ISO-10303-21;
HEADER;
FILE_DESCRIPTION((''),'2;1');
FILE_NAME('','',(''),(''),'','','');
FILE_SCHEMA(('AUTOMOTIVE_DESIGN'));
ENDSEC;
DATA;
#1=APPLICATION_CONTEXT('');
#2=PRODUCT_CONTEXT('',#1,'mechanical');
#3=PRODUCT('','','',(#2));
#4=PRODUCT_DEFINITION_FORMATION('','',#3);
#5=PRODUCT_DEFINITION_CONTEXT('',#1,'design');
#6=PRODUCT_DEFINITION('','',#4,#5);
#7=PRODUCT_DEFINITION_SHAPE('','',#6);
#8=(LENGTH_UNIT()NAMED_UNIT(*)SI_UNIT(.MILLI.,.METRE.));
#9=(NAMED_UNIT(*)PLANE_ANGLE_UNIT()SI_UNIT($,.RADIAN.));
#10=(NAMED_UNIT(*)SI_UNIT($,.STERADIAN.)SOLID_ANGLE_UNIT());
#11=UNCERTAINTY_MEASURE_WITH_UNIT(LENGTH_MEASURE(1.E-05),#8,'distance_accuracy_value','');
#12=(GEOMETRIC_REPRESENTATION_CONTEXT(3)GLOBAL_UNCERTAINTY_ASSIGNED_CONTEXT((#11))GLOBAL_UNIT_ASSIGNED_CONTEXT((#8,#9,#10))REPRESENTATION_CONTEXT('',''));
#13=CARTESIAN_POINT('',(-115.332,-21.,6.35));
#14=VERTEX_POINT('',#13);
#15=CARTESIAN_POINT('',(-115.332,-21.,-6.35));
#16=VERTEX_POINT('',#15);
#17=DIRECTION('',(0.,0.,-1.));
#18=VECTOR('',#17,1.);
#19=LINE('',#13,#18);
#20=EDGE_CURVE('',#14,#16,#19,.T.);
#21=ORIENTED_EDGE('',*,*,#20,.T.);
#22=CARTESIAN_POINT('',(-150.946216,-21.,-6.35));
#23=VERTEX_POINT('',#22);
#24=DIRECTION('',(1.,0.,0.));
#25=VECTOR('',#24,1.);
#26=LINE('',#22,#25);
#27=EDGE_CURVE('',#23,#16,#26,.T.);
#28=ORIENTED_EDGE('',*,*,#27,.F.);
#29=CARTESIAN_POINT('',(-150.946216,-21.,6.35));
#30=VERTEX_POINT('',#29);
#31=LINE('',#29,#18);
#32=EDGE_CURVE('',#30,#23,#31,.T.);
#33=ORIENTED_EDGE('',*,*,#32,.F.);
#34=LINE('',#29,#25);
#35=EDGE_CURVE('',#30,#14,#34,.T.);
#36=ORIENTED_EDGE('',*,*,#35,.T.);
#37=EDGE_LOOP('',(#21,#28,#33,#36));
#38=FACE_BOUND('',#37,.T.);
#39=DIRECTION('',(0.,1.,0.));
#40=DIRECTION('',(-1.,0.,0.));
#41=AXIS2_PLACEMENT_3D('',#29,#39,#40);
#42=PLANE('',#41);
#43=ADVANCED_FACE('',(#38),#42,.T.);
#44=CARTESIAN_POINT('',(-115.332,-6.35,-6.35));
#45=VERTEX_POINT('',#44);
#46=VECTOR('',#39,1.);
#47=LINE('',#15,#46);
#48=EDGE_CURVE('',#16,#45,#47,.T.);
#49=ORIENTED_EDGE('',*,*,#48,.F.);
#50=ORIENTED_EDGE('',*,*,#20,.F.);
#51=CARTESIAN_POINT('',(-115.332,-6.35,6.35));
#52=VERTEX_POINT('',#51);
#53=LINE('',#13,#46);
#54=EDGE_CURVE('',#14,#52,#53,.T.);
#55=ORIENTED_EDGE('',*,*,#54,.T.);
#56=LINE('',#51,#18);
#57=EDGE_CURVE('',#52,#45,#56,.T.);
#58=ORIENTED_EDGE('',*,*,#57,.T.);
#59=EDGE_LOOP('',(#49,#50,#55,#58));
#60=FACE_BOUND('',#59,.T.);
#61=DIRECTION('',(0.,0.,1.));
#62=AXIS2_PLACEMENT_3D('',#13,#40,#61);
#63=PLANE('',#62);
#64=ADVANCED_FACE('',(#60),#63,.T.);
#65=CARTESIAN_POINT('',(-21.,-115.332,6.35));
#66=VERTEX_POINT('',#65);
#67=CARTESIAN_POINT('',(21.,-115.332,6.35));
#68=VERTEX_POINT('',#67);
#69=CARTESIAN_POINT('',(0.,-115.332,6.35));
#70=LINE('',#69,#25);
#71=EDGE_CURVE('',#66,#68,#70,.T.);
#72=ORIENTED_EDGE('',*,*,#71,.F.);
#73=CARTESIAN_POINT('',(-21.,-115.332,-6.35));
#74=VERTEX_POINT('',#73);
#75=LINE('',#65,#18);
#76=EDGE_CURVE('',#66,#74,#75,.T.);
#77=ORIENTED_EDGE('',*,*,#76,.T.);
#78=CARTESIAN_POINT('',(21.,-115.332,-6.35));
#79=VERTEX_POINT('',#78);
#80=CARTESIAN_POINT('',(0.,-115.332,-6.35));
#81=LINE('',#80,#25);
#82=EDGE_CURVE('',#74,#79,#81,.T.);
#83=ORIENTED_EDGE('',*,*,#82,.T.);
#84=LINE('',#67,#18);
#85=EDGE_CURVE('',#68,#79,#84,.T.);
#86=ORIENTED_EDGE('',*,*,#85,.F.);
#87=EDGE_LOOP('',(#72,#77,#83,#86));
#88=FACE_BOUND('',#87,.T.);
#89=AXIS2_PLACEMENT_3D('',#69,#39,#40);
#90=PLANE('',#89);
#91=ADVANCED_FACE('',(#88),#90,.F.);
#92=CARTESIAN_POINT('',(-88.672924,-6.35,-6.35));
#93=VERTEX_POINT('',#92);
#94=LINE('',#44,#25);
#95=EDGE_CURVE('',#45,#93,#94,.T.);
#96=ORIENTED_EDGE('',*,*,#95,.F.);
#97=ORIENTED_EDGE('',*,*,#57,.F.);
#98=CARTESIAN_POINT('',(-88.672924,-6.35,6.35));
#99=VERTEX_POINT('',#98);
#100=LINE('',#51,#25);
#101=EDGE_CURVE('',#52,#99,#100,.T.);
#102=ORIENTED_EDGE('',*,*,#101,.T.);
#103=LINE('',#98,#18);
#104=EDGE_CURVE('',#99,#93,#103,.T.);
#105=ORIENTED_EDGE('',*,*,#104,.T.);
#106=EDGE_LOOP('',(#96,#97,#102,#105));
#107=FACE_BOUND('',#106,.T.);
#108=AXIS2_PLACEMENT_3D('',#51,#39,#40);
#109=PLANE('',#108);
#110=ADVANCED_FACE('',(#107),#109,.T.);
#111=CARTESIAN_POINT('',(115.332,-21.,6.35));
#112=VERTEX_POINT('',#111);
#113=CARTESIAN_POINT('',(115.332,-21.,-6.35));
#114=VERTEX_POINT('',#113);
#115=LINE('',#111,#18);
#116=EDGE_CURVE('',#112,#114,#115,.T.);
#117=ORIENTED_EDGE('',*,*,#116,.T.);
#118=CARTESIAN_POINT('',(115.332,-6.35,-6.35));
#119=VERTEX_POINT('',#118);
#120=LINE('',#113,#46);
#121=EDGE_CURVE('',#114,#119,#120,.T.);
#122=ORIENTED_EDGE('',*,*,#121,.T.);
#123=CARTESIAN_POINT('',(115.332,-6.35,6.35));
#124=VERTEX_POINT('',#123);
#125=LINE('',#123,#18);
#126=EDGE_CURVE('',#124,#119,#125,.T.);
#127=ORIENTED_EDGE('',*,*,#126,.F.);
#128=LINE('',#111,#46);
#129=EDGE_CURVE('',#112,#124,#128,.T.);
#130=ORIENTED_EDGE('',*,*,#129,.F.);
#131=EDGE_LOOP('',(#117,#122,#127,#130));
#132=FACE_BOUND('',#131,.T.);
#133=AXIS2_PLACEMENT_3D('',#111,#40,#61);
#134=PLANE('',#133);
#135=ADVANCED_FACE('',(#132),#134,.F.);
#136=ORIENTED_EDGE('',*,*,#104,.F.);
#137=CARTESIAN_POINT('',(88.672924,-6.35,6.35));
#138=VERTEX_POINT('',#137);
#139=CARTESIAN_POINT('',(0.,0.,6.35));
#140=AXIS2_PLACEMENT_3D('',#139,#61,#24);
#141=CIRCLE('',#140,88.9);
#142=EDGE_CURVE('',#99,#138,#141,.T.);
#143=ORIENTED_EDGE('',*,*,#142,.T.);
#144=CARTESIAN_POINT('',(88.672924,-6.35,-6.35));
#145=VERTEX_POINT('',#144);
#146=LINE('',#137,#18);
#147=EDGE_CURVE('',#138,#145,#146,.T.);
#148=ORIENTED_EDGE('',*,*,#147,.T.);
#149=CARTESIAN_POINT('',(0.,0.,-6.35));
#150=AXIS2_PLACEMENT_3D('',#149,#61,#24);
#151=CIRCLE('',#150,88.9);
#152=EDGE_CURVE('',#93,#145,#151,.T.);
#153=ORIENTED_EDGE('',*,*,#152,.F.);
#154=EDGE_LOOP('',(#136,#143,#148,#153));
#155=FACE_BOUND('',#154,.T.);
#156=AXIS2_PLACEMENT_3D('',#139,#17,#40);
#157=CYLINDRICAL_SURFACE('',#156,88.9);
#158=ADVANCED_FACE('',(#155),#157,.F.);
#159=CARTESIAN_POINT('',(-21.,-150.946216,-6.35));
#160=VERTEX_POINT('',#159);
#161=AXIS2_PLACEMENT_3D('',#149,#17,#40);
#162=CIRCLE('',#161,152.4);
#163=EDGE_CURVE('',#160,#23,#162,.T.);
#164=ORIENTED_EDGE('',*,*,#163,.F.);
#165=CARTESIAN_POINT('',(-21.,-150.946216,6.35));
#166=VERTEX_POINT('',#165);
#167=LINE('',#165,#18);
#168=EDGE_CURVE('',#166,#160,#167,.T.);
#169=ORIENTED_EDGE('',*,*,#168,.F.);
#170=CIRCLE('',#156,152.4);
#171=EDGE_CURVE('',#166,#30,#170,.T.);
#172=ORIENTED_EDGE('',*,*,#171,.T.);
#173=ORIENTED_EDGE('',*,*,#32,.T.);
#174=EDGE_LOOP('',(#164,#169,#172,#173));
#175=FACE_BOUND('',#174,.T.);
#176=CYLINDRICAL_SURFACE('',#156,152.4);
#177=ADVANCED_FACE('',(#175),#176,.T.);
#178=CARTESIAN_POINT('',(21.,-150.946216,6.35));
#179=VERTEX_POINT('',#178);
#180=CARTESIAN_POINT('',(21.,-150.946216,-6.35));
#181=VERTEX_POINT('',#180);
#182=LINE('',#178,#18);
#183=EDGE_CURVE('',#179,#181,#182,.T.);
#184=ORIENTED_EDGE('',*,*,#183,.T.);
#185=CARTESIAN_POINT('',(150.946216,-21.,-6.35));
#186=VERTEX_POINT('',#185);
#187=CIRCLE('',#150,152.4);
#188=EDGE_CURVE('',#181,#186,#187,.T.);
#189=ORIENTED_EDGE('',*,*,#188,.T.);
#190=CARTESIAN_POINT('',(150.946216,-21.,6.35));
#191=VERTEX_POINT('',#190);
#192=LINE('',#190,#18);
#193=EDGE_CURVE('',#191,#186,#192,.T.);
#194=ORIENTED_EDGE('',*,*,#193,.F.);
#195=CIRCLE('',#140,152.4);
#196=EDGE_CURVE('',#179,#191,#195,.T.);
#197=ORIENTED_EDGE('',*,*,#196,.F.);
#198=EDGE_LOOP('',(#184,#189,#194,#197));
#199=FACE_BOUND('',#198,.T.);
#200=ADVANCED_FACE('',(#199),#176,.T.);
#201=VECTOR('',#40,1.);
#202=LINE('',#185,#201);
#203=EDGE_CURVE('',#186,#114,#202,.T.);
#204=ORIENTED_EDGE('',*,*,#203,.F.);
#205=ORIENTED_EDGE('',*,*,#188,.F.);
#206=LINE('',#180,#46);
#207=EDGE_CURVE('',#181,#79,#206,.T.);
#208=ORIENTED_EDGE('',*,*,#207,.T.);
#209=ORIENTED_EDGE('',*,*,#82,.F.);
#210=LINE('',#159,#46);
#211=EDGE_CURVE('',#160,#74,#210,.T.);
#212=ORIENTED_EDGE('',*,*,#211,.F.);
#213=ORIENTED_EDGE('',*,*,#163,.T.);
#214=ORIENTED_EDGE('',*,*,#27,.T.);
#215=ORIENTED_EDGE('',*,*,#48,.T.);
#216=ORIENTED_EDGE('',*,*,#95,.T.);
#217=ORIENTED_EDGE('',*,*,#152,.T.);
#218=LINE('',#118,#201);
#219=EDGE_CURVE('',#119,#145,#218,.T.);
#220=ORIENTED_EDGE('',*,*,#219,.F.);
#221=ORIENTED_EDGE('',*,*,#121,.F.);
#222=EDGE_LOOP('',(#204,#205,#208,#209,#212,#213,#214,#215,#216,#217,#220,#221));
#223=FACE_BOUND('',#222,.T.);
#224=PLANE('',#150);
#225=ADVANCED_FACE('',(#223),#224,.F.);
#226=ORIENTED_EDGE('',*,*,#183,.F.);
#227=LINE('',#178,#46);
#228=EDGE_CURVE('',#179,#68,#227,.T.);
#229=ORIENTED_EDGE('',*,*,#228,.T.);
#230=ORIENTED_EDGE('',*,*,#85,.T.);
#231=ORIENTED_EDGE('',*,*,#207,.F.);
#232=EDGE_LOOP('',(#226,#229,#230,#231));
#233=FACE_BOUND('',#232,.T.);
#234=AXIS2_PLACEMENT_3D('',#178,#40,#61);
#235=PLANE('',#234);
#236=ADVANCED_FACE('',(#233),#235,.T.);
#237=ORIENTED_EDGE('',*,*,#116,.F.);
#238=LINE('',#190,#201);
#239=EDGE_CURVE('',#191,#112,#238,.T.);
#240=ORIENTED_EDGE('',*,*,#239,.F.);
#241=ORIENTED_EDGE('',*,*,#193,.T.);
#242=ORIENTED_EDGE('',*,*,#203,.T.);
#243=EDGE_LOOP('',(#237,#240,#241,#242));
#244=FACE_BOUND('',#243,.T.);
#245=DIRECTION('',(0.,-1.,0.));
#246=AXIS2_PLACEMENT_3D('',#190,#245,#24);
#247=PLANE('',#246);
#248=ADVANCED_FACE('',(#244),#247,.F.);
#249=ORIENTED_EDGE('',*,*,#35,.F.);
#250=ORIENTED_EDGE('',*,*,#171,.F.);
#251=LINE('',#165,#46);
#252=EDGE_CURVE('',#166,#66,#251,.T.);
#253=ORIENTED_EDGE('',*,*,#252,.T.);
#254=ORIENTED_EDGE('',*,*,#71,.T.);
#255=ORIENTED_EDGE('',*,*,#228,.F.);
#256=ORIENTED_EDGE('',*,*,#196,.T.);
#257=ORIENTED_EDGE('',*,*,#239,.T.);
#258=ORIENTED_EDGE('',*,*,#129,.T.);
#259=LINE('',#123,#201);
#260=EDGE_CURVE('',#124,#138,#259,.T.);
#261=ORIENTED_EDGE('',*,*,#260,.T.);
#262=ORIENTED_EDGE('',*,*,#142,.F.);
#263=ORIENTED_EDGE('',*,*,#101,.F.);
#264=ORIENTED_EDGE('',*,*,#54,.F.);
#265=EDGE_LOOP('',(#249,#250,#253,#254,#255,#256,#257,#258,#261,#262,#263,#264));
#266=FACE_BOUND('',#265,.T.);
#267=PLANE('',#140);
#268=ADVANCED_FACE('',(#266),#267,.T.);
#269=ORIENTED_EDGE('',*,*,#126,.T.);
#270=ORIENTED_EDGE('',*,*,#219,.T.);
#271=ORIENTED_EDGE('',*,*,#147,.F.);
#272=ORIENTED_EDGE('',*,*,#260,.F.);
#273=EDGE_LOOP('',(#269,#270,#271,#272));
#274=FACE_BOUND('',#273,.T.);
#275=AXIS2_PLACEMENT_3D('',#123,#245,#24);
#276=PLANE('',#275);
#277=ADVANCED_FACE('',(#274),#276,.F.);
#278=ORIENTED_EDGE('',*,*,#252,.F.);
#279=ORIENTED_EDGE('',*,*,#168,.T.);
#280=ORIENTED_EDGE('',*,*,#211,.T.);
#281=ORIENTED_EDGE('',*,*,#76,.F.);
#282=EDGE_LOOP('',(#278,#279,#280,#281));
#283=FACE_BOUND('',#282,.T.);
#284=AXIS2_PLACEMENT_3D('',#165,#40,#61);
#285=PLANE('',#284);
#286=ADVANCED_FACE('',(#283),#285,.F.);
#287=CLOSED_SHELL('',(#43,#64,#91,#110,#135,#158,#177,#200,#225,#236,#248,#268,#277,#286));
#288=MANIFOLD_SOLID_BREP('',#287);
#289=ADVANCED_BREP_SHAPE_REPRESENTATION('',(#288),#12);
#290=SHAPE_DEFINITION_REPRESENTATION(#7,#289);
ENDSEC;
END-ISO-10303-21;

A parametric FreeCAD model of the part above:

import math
import FreeCAD as App
import Part
import Sketcher

V = App.Vector
Q = App.Units.Quantity

doc = App.newDocument("Part")
params = doc.addObject("Spreadsheet::Sheet", "Params")
for row, (alias, value) in enumerate([
    ("sketch1_radius", "6 in"),
    ("sketch1_radius2", "3.5 in"),
    ("pad1_length", "0.5 in"),
], start=1):
    params.set(f"A{row}", alias)
    params.set(f"B{row}", "=" + value)
    params.setAlias(f"B{row}", alias)

body = doc.addObject("PartDesign::Body", "Body")

# Sketch on XY plane
sketch1 = body.newObject("Sketcher::SketchObject", "Sketch")
sketch1.AttachmentSupport = (doc.getObject("XY_Plane"), [""])
sketch1.MapMode = "FlatFace"
sketch1.addGeometry(Part.LineSegment(V(21, -115.332, 0), V(21, -150.946216, 0)), False)
sketch1.addGeometry(Part.ArcOfCircle(Part.Circle(V(0, 0, 0), V(0, 0, 1), 152.4), math.radians(-82.079712), math.radians(-7.920288)), False)
sketch1.addGeometry(Part.LineSegment(V(150.946216, -21, 0), V(115.332, -21, 0)), False)
sketch1.addGeometry(Part.LineSegment(V(115.332, -21, 0), V(115.332, -6.35, 0)), False)
sketch1.addGeometry(Part.LineSegment(V(115.332, -6.35, 0), V(88.672924, -6.35, 0)), False)
sketch1.addGeometry(Part.ArcOfCircle(Part.Circle(V(0, 0, 0), V(0, 0, 1), 88.9), math.radians(-90), math.radians(-4.096044)), False)
sketch1.addGeometry(Part.LineSegment(V(0, -88.9, 0), V(0, -115.332, 0)), False)
sketch1.addGeometry(Part.LineSegment(V(0, -115.332, 0), V(21, -115.332, 0)), False)
sketch1.addConstraint(Sketcher.Constraint("Coincident", 0, 2, 1, 1))
sketch1.addConstraint(Sketcher.Constraint("Coincident", 1, 2, 2, 1))
sketch1.addConstraint(Sketcher.Constraint("Coincident", 2, 2, 3, 1))
sketch1.addConstraint(Sketcher.Constraint("Coincident", 3, 2, 4, 1))
sketch1.addConstraint(Sketcher.Constraint("Coincident", 4, 2, 5, 2))
sketch1.addConstraint(Sketcher.Constraint("Coincident", 5, 1, 6, 1))
sketch1.addConstraint(Sketcher.Constraint("Coincident", 6, 2, 7, 1))
sketch1.addConstraint(Sketcher.Constraint("Coincident", 7, 2, 0, 1))
sketch1.addConstraint(Sketcher.Constraint("Vertical", 0))
sketch1.addConstraint(Sketcher.Constraint("Horizontal", 2))
sketch1.addConstraint(Sketcher.Constraint("Vertical", 3))
sketch1.addConstraint(Sketcher.Constraint("Horizontal", 4))
sketch1.addConstraint(Sketcher.Constraint("Vertical", 6))
sketch1.addConstraint(Sketcher.Constraint("Horizontal", 7))
sketch1.addConstraint(Sketcher.Constraint("Coincident", 1, 3, -1, 1))
sketch1.addConstraint(Sketcher.Constraint("Coincident", 5, 3, -1, 1))
sketch1.addConstraint(Sketcher.Constraint("PointOnObject", 5, 1, -2))
sketch1.addConstraint(Sketcher.Constraint("Equal", 2, 0))
sketch1.addConstraint(Sketcher.Constraint("Radius", 1, Q("6 in")))
sketch1.addConstraint(Sketcher.Constraint("Radius", 5, Q("3.5 in")))
sketch1.addConstraint(Sketcher.Constraint("DistanceY", 3, 2, -1, 1, Q("0.25 in")))
sketch1.addConstraint(Sketcher.Constraint("DistanceX", 7, 1, 7, 2, Q("21 mm")))
sketch1.addConstraint(Sketcher.Constraint("DistanceY", 3, 1, 3, 2, Q("14.65 mm")))
sketch1.addConstraint(Sketcher.Constraint("DistanceY", 6, 2, 6, 1, Q("26.432 mm")))
sketch1.setExpression("Constraints[18]", "Params.sketch1_radius")
sketch1.setExpression("Constraints[19]", "Params.sketch1_radius2")
pad1 = body.newObject("PartDesign::Pad", "Pad")
pad1.Profile = sketch1
pad1.setExpression("Length", "Params.pad1_length")
pad1.Midplane = True
doc.recompute()

mirrored = body.newObject("PartDesign::Mirrored", "Mirrored")
mirrored.Originals = [pad1]
mirrored.MirrorPlane = (doc.getObject("YZ_Plane"), [""])
body.Tip = mirrored

doc.recompute()
